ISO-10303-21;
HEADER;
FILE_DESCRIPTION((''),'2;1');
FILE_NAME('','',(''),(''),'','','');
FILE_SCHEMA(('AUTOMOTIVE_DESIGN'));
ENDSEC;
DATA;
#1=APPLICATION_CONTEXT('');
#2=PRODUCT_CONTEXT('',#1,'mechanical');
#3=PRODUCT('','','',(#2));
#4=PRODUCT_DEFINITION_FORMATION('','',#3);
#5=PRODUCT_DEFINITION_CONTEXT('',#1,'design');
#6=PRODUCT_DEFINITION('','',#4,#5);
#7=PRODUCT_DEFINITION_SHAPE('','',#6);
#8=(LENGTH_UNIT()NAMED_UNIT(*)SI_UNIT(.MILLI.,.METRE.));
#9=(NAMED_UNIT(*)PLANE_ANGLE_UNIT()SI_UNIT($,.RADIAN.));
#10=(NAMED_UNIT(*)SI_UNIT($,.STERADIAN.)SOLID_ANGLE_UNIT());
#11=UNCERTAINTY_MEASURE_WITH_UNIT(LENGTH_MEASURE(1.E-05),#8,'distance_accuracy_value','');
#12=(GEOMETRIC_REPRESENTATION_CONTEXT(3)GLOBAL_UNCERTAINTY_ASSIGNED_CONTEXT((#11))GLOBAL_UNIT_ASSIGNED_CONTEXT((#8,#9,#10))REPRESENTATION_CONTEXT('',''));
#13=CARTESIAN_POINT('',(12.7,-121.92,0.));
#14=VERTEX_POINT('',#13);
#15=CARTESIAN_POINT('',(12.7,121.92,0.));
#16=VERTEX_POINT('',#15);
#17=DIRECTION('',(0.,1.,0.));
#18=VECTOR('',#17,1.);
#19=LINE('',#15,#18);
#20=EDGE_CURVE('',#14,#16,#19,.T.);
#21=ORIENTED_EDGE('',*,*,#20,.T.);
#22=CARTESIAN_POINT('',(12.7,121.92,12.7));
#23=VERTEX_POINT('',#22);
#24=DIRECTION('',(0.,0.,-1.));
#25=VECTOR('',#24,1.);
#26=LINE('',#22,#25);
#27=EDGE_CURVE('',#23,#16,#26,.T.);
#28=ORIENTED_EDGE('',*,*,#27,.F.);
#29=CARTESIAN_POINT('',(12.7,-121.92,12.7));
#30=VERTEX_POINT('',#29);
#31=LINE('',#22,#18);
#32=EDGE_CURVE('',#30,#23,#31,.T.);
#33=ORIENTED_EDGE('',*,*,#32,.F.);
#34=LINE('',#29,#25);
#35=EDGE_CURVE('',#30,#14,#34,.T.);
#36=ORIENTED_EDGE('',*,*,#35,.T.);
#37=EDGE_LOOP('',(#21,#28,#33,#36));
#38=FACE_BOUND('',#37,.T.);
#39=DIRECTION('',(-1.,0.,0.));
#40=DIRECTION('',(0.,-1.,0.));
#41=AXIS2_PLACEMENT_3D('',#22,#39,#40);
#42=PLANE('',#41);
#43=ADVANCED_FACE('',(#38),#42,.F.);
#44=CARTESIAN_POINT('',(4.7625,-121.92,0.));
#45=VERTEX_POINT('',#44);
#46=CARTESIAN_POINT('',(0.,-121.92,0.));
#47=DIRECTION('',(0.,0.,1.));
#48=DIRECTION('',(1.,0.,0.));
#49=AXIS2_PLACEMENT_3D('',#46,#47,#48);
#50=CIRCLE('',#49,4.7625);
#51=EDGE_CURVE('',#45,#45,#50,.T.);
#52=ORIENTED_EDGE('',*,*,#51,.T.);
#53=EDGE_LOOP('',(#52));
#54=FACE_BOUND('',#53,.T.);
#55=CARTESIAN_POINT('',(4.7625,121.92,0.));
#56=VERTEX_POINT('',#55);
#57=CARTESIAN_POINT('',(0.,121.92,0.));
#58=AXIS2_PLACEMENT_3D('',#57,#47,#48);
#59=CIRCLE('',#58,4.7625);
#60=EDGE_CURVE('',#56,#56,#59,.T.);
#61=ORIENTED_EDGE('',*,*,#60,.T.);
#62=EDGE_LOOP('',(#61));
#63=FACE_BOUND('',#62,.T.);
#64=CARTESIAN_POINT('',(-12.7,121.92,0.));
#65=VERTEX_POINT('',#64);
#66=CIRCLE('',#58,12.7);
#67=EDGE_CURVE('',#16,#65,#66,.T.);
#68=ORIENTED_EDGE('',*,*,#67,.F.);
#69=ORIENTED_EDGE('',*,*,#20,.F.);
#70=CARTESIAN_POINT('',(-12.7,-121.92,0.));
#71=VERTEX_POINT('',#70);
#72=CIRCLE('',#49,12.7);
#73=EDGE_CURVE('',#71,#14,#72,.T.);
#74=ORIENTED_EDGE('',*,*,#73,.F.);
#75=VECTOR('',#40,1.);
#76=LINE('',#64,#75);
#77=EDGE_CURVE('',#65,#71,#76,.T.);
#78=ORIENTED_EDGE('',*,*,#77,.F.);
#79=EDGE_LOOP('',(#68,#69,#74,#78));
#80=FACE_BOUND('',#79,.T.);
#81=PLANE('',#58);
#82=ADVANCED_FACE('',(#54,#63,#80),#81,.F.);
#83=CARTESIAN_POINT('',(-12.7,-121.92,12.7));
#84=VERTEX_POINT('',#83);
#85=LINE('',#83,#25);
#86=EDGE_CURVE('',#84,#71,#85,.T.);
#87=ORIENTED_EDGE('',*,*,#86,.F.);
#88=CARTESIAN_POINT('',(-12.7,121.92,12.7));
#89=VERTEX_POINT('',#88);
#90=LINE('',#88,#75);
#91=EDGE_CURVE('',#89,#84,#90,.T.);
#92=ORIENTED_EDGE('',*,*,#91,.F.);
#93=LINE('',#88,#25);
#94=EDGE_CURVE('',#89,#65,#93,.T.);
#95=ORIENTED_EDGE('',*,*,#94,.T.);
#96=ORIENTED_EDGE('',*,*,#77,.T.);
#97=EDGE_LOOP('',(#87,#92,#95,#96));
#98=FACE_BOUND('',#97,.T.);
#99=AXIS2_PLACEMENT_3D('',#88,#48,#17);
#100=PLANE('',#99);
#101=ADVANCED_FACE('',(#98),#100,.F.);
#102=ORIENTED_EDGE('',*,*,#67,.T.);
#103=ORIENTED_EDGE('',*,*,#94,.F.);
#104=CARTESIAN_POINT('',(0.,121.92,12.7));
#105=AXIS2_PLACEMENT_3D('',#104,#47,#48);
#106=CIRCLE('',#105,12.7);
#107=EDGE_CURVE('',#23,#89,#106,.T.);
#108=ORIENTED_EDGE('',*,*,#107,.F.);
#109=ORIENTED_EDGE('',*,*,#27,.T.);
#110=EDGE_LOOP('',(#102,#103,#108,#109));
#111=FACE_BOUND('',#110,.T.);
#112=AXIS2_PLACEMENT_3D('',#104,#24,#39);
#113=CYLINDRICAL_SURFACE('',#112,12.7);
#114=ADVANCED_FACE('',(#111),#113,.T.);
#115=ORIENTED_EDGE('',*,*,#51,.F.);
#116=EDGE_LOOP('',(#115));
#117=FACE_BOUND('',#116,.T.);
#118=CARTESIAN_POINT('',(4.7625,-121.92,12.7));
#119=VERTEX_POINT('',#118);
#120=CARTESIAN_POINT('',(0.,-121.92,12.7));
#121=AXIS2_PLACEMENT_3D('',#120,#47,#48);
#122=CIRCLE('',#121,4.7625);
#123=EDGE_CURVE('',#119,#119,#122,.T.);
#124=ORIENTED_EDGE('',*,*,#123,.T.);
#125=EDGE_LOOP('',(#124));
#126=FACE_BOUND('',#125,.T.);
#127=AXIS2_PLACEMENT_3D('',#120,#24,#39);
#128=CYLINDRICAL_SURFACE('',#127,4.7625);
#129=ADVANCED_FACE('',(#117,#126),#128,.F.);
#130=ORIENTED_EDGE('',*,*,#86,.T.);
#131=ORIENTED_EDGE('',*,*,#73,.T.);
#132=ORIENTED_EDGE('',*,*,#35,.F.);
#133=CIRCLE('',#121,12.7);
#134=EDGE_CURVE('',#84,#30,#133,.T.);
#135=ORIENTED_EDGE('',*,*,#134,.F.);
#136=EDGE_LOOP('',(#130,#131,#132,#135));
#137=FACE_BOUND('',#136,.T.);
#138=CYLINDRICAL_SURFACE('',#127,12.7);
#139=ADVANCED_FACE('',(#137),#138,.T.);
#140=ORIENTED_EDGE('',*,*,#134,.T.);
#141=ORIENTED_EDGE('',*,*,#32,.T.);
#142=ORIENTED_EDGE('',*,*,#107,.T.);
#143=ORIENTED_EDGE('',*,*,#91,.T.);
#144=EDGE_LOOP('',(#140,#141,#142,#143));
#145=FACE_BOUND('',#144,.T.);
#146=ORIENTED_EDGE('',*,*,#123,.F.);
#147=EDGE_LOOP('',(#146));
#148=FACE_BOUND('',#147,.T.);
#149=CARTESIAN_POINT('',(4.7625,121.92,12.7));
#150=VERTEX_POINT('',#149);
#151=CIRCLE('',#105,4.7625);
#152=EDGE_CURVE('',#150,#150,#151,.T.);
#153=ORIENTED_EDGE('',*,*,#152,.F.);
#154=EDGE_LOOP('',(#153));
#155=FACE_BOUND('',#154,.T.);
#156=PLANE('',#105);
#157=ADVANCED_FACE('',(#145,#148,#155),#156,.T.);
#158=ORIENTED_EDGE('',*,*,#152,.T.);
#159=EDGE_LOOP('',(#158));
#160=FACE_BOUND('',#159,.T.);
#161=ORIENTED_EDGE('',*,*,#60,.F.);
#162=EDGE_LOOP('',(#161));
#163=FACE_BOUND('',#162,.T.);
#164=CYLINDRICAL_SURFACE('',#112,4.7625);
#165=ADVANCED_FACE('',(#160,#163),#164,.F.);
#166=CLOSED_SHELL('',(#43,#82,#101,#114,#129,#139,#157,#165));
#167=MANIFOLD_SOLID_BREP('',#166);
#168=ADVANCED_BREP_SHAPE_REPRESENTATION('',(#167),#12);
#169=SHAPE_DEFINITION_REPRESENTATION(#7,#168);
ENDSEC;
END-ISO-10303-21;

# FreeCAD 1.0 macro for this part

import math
import FreeCAD as App
import Part
import Sketcher
Q = App.Units.Quantity

doc = App.newDocument("Part")
params = doc.addObject("Spreadsheet::Sheet", "Params")
for row, (alias, value) in enumerate([
    ("sketch1_radius", "0.5 in"),
    ("sketch1_diameter", "0.375 in"),
    ("sketch1_height", "9.6 in"),
    ("pad1_length", "0.5 in"),
], start=1):
    params.set(f"A{row}", alias)
    params.set(f"B{row}", "=" + value)
    params.setAlias(f"B{row}", alias)

body = doc.addObject("PartDesign::Body", "Body")

# Sketch on XY plane
sketch1 = body.newObject("Sketcher::SketchObject", "Sketch")
sketch1.AttachmentSupport = (doc.getObject("XY_Plane"), [""])
sketch1.MapMode = "FlatFace"
sketch1.addGeometry(Part.LineSegment(App.Vector(12.7, -121.92, 0), App.Vector(12.7, 121.92, 0)), False)
sketch1.addGeometry(Part.ArcOfCircle(Part.Circle(App.Vector(0, 121.92, 0), App.Vector(0, 0, 1), 12.7), math.radians(0), math.radians(180)), False)
sketch1.addGeometry(Part.LineSegment(App.Vector(-12.7, 121.92, 0), App.Vector(-12.7, -121.92, 0)), False)
sketch1.addGeometry(Part.ArcOfCircle(Part.Circle(App.Vector(0, -121.92, 0), App.Vector(0, 0, 1), 12.7), math.radians(180), math.radians(360)), False)
sketch1.addGeometry(Part.Circle(App.Vector(0, -121.92, 0), App.Vector(0, 0, 1), 4.7625), False)
sketch1.addGeometry(Part.Circle(App.Vector(0, 121.92, 0), App.Vector(0, 0, 1), 4.7625), False)
sketch1.addConstraint(Sketcher.Constraint("Tangent", 0, 2, 1, 1))
sketch1.addConstraint(Sketcher.Constraint("Tangent", 1, 2, 2, 1))
sketch1.addConstraint(Sketcher.Constraint("Tangent", 2, 2, 3, 1))
sketch1.addConstraint(Sketcher.Constraint("Tangent", 3, 2, 0, 1))
sketch1.addConstraint(Sketcher.Constraint("Vertical", 0))
sketch1.addConstraint(Sketcher.Constraint("Vertical", 2))
sketch1.addConstraint(Sketcher.Constraint("Coincident", 4, 3, 3, 3))
sketch1.addConstraint(Sketcher.Constraint("Coincident", 5, 3, 1, 3))
sketch1.addConstraint(Sketcher.Constraint("Equal", 4, 5))
sketch1.addConstraint(Sketcher.Constraint("Symmetric", 1, 3, 3, 3, -1, 1))
sketch1.addConstraint(Sketcher.Constraint("Radius", 1, Q("0.5 in")))
sketch1.addConstraint(Sketcher.Constraint("Diameter", 4, Q("0.375 in")))
sketch1.addConstraint(Sketcher.Constraint("DistanceY", 0, 1, 0, 2, Q("9.6 in")))
sketch1.setExpression("Constraints[10]", "Params.sketch1_radius")
sketch1.setExpression("Constraints[11]", "Params.sketch1_diameter")
sketch1.setExpression("Constraints[12]", "Params.sketch1_height")
pad1 = body.newObject("PartDesign::Pad", "Pad")
pad1.Profile = sketch1
pad1.setExpression("Length", "Params.pad1_length")

doc.recompute()
